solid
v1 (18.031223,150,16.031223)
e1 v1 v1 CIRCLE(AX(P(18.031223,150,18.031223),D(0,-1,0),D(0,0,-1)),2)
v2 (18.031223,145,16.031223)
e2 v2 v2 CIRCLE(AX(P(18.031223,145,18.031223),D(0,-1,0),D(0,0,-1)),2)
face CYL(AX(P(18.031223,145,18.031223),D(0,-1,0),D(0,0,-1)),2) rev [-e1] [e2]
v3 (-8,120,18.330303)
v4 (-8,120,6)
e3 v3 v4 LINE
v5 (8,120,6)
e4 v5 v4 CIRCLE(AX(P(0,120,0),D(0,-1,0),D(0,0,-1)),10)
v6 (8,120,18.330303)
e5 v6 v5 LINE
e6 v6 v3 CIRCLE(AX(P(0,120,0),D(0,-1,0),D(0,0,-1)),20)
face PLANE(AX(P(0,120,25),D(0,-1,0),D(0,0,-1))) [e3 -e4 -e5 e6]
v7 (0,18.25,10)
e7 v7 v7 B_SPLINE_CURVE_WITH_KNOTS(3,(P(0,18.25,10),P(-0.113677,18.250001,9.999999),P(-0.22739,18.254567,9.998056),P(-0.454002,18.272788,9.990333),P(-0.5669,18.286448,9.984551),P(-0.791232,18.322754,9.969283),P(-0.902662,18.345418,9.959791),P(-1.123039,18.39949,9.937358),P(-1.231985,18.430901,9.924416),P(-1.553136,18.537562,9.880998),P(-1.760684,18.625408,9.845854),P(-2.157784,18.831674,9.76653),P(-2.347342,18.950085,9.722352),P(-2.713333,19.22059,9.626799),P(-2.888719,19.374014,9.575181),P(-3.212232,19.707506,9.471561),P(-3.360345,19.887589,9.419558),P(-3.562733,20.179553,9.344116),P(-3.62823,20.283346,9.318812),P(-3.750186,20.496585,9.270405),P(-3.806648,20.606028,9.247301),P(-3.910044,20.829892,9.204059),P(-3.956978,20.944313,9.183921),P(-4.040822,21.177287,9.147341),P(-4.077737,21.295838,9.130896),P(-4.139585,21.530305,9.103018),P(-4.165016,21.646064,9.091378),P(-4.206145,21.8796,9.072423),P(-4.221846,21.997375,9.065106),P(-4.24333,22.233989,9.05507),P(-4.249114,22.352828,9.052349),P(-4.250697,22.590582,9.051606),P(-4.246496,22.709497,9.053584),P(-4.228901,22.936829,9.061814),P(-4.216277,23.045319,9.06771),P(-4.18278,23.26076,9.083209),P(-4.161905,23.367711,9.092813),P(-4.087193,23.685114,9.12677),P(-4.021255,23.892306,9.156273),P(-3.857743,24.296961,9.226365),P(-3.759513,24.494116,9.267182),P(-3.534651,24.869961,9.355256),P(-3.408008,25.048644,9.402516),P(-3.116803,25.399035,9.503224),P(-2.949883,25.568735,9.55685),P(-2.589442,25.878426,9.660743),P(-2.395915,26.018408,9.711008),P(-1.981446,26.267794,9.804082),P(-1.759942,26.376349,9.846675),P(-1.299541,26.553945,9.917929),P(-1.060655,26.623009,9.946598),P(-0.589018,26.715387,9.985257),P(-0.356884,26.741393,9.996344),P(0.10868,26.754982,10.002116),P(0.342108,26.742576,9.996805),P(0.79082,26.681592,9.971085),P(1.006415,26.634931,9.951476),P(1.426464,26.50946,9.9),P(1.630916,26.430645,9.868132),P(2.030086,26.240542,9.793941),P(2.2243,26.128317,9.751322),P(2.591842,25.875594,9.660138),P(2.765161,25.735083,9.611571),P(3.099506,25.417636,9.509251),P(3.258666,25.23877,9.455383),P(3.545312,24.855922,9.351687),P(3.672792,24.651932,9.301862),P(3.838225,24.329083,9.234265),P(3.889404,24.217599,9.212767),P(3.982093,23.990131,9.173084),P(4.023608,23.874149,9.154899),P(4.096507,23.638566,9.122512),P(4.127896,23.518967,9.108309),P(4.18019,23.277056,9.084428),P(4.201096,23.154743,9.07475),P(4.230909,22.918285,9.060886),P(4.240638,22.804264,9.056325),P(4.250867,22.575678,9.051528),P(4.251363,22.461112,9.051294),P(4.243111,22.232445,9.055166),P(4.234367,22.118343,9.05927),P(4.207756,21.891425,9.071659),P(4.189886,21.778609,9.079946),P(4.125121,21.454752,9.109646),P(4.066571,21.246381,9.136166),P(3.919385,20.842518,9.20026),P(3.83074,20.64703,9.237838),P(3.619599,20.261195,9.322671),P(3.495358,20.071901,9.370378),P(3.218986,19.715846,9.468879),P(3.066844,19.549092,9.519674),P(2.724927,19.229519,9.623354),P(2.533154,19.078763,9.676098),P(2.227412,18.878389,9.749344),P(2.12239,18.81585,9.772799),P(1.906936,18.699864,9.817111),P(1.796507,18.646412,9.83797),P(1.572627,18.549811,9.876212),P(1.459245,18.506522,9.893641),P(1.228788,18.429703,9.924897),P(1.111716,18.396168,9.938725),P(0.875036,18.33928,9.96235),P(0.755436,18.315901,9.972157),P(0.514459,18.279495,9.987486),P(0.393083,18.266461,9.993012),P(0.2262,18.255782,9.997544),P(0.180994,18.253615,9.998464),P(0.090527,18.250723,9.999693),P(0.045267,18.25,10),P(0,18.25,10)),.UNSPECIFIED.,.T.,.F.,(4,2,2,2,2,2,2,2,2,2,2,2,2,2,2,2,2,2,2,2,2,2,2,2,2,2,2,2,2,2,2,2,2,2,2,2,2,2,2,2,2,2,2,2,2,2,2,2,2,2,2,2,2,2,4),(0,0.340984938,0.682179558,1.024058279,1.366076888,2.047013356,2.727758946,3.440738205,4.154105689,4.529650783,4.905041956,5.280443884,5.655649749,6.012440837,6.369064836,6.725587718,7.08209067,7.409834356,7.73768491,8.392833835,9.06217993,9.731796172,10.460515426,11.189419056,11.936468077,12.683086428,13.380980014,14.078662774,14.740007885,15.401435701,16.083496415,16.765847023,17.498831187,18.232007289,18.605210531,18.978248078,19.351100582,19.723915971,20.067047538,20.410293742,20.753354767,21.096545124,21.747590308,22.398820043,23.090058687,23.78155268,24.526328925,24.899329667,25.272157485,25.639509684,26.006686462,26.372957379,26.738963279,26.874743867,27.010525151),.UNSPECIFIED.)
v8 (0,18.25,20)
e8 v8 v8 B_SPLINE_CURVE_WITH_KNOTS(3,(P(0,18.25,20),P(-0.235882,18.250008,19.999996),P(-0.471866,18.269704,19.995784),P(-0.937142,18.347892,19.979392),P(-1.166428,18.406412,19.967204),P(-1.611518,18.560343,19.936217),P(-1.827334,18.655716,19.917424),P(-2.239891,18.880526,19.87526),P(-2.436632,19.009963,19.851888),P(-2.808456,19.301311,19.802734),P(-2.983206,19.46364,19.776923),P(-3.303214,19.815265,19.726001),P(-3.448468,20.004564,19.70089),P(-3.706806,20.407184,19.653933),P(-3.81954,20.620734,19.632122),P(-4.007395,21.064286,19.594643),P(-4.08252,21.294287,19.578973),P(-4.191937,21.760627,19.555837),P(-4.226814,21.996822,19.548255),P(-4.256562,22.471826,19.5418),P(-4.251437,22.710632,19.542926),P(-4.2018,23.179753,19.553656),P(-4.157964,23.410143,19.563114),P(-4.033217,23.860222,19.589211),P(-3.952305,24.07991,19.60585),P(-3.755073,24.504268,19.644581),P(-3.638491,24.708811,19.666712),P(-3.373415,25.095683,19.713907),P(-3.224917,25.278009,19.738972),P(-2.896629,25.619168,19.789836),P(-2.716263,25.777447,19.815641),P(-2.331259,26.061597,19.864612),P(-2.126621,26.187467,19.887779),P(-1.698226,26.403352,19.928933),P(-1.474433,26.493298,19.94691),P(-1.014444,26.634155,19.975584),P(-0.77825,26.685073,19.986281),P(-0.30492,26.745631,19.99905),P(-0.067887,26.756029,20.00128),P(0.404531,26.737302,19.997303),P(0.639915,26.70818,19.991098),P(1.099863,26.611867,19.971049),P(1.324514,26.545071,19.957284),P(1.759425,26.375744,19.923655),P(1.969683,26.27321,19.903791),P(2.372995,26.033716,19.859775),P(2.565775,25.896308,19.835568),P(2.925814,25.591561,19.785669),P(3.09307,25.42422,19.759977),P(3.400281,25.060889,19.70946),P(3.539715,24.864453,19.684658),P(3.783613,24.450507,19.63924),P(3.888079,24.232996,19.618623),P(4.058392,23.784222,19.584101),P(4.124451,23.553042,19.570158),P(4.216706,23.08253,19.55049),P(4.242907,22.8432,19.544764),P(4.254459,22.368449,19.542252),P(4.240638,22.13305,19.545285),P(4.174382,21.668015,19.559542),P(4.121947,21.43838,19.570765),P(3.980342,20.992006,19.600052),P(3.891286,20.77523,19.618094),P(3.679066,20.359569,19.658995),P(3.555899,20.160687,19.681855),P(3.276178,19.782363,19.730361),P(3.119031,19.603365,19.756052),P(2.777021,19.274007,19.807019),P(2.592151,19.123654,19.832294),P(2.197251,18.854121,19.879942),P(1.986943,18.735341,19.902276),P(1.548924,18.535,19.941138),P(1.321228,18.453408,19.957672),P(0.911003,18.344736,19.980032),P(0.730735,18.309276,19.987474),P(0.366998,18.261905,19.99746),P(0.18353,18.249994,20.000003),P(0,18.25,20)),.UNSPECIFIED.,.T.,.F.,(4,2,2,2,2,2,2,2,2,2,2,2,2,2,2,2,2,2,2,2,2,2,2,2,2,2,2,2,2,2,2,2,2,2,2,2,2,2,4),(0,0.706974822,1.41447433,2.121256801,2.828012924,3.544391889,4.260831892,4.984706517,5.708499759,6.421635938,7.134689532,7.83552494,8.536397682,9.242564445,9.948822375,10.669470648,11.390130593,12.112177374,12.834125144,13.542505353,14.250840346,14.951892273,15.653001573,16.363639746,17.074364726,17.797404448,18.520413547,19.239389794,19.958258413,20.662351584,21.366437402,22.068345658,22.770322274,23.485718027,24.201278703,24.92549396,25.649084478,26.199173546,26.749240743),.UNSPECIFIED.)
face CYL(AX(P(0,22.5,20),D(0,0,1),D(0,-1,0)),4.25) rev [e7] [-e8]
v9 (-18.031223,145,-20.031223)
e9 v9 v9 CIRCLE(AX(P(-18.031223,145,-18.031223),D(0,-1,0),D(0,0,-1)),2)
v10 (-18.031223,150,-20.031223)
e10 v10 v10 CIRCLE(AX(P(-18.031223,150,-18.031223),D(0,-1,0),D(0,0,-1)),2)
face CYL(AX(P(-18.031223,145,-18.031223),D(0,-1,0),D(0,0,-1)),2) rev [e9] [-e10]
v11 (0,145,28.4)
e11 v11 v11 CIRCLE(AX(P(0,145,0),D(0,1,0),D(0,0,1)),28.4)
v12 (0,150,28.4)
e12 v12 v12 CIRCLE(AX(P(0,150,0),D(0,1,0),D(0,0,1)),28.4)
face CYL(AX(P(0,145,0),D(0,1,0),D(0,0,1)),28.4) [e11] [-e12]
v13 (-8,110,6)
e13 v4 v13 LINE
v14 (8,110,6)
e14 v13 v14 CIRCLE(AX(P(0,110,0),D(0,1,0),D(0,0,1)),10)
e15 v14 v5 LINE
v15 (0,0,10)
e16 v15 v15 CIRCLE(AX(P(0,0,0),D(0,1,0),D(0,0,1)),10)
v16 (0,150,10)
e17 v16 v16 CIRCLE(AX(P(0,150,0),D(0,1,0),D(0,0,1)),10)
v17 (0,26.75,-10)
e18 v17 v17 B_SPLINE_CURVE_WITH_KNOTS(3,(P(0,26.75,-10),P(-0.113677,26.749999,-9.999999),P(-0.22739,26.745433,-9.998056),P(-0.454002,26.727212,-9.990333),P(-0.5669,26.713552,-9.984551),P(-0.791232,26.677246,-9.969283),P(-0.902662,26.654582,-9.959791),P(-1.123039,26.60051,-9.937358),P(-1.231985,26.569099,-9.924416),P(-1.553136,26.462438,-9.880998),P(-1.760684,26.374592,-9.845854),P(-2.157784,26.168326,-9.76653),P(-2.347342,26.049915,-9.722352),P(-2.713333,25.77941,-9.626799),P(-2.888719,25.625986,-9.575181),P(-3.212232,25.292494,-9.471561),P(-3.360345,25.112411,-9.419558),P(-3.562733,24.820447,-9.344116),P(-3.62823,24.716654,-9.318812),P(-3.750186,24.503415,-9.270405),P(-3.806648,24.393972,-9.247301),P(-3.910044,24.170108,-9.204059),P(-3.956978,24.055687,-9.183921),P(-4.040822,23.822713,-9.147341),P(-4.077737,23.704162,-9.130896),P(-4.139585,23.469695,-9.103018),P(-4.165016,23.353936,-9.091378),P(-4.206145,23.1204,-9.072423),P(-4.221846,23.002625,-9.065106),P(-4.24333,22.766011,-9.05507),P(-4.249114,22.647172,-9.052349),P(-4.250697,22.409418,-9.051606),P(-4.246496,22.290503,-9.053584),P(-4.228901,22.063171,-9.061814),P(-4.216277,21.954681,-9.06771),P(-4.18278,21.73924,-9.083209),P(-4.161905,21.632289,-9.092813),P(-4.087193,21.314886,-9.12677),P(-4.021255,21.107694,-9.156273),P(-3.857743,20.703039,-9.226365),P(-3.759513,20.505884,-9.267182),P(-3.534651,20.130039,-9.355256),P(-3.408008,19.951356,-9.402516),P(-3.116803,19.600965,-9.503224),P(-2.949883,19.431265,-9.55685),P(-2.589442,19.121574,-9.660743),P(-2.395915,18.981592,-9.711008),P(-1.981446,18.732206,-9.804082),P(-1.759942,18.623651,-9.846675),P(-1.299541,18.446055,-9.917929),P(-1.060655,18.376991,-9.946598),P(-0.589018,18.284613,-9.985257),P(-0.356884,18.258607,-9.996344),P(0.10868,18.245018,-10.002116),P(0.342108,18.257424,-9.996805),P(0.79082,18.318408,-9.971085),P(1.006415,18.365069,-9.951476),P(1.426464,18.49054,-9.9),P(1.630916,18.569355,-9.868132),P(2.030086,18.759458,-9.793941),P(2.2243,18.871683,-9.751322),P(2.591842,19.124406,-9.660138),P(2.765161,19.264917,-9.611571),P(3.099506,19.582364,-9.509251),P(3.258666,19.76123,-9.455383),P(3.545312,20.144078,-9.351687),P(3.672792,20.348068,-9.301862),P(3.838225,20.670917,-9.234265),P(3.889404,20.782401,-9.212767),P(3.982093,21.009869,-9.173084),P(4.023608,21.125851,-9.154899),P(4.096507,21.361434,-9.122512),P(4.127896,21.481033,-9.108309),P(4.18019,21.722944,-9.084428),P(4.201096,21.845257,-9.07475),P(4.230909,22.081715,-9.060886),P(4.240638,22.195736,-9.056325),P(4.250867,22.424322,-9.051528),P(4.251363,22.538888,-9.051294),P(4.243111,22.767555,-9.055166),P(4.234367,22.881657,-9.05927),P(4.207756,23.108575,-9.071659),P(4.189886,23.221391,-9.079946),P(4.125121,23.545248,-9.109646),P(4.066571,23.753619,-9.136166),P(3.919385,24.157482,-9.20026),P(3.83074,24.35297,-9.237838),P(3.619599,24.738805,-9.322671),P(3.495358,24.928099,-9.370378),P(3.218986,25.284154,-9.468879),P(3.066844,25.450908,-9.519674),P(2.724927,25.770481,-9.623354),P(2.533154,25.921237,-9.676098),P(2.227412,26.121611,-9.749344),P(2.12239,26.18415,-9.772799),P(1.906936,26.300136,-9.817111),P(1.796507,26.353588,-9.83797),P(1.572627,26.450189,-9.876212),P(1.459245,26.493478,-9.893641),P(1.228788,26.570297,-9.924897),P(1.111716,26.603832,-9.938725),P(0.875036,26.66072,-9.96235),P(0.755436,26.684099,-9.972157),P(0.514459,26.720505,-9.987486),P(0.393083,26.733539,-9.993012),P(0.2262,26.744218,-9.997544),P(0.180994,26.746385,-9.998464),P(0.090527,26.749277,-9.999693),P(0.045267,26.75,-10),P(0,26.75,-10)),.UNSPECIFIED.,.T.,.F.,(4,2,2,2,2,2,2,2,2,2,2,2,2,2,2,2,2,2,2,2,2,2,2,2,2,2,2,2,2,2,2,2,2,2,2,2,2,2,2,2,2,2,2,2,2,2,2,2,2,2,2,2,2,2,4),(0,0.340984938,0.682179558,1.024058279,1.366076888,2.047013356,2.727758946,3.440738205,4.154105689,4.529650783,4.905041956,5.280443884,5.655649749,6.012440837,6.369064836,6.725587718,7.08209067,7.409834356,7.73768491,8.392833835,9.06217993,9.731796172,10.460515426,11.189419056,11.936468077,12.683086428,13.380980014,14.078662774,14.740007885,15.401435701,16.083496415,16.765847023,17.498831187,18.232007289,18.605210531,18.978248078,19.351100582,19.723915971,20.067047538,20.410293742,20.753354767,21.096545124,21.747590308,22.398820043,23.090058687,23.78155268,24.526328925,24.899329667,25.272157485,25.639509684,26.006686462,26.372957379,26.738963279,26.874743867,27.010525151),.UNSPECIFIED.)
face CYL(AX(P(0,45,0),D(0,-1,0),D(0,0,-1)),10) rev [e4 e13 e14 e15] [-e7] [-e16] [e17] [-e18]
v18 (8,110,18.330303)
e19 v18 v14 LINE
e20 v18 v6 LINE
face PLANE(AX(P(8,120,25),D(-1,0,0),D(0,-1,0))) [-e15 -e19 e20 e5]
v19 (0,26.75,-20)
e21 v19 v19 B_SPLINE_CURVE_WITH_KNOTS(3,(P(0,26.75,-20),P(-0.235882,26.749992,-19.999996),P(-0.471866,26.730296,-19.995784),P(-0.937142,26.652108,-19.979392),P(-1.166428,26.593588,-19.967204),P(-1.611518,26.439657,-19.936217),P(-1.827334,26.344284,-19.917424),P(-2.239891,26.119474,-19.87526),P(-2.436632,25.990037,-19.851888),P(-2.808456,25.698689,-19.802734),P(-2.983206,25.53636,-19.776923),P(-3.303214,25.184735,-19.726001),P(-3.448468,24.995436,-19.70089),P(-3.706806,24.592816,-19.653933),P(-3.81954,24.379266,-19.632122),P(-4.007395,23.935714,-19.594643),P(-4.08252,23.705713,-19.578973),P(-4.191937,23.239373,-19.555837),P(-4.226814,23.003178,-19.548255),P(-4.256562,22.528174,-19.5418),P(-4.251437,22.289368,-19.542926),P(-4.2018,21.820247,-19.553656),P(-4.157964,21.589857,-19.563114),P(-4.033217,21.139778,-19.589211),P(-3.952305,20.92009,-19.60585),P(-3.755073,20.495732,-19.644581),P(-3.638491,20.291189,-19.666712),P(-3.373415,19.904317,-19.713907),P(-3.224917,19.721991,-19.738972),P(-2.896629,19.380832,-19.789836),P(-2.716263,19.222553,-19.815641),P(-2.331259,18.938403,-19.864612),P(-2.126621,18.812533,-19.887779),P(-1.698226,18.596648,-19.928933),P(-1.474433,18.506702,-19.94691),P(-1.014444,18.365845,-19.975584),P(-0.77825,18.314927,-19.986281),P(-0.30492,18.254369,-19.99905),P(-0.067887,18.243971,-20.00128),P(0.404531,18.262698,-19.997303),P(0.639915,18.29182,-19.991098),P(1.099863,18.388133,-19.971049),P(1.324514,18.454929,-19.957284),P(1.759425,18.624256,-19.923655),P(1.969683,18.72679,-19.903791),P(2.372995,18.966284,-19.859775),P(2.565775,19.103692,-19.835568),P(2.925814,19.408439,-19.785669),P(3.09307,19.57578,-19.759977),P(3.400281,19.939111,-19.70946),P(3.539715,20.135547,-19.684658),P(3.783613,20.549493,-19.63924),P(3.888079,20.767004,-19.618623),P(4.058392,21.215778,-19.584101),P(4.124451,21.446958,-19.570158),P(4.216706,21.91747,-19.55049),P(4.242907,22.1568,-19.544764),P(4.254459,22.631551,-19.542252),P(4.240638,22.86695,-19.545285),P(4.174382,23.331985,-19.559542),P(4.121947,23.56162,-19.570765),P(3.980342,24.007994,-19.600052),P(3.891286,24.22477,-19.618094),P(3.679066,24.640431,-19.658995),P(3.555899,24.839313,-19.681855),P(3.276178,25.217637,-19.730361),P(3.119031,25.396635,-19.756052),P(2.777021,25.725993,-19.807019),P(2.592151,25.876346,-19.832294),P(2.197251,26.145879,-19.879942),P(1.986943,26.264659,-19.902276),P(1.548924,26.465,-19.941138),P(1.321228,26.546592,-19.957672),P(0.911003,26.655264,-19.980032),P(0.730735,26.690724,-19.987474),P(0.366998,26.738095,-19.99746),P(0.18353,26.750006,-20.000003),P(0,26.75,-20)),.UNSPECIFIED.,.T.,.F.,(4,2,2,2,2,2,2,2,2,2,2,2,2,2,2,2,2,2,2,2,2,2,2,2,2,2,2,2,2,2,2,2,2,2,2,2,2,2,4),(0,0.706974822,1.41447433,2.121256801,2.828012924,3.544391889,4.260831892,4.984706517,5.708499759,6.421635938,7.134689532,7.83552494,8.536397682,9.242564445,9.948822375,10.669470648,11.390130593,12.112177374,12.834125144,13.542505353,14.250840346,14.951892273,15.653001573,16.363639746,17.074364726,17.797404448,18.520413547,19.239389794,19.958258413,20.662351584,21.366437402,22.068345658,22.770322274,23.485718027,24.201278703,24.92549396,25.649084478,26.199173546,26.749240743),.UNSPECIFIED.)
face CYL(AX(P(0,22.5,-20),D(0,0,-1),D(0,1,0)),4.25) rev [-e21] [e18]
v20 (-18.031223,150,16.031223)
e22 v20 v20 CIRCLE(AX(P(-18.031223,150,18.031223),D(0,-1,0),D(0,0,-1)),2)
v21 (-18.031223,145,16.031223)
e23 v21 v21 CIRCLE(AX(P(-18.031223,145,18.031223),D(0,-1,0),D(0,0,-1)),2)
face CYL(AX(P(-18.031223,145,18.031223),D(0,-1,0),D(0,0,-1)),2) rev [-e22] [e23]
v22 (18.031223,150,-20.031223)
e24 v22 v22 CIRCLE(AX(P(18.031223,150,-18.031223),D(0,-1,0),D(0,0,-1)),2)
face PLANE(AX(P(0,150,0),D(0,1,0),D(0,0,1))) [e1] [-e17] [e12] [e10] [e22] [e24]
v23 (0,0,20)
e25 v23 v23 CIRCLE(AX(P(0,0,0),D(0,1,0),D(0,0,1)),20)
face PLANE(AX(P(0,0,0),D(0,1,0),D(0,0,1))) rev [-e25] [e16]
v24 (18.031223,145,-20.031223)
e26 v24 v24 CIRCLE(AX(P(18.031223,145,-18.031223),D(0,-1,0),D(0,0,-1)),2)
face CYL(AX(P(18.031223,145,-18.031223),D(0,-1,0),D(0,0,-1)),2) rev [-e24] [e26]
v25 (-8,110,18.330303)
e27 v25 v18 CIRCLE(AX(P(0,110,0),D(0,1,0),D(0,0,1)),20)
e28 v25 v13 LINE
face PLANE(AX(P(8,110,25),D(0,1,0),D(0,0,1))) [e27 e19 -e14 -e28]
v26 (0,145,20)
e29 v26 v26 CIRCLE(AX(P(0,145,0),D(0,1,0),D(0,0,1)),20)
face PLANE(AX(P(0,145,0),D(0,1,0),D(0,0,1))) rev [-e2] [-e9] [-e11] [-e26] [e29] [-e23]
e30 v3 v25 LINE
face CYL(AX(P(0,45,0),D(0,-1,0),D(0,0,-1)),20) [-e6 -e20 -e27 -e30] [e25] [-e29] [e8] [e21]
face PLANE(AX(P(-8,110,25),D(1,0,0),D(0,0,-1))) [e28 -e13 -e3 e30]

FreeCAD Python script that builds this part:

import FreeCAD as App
import Part
import Sketcher
Q = App.Units.Quantity

doc = App.newDocument("Part")
body = doc.addObject("PartDesign::Body", "Body")

# Sketch on XZ plane
sketch1 = body.newObject("Sketcher::SketchObject", "Sketch")
sketch1.AttachmentSupport = (doc.getObject("XZ_Plane"), [""])
sketch1.MapMode = "FlatFace"
sketch1.addGeometry([
    Part.Circle(App.Vector(0, 0, 0), App.Vector(0, 0, 1), 20),
    Part.Circle(App.Vector(0, 0, 0), App.Vector(0, 0, 1), 10),
], False)
sketch1.addConstraint([
    Sketcher.Constraint("Coincident", 0, 3, -1, 1),
    Sketcher.Constraint("Coincident", 1, 3, -1, 1),
    Sketcher.Constraint("Diameter", 0, Q("40 mm")),
    Sketcher.Constraint("Diameter", 1, Q("20 mm")),
])
pad1 = body.newObject("PartDesign::Pad", "Pad")
pad1.Profile = sketch1
pad1.Length = 45
pad1.Reversed = True

# Sketch on XY plane
sketch2 = body.newObject("Sketcher::SketchObject", "Sketch001")
sketch2.AttachmentSupport = (doc.getObject("XY_Plane"), [""])
sketch2.MapMode = "FlatFace"
sketch2.AttachmentOffset = App.Placement(App.Vector(0, 0, -20), App.Rotation())
sketch2.addGeometry(Part.Circle(App.Vector(0, 22.5, 0), App.Vector(0, 0, 1), 4.2), False)
sketch2.addConstraint([
    Sketcher.Constraint("PointOnObject", 0, 3, -2),
    Sketcher.Constraint("Diameter", 0, Q("8.5 mm")),
    Sketcher.Constraint("DistanceY", -1, 1, 0, 3, Q("22.5 mm")),
])
doc.recompute()
hole = body.newObject("PartDesign::Hole", "Hole")
hole.Profile = sketch2
hole.ThreadType = "None"
hole.Diameter = 8.5
hole.DepthType = "Dimension"
hole.Depth = 12.5
hole.DrillPoint = "Angled"
hole.DrillPointAngle = 118
hole.Reversed = True

# Sketch on XY plane
sketch3 = body.newObject("Sketcher::SketchObject", "Sketch002")
sketch3.AttachmentSupport = (doc.getObject("XY_Plane"), [""])
sketch3.MapMode = "FlatFace"
sketch3.AttachmentOffset = App.Placement(App.Vector(0, 0, 20), App.Rotation())
sketch3.addGeometry(Part.Circle(App.Vector(0, 22.5, 0), App.Vector(0, 0, 1), 4.2), False)
sketch3.addConstraint([
    Sketcher.Constraint("PointOnObject", 0, 3, -2),
    Sketcher.Constraint("Diameter", 0, Q("8.5 mm")),
    Sketcher.Constraint("DistanceY", -1, 1, 0, 3, Q("22.5 mm")),
])
doc.recompute()
hole2 = body.newObject("PartDesign::Hole", "Hole001")
hole2.Profile = sketch3
hole2.ThreadType = "None"
hole2.Diameter = 8.5
hole2.DepthType = "Dimension"
hole2.Depth = 12.5
hole2.DrillPoint = "Angled"
hole2.DrillPointAngle = 118

# Sketch on XZ plane
sketch4 = body.newObject("Sketcher::SketchObject", "Sketch003")
sketch4.AttachmentSupport = (doc.getObject("XZ_Plane"), [""])
sketch4.MapMode = "FlatFace"
sketch4.AttachmentOffset = App.Placement(App.Vector(0, 0, -45), App.Rotation())
sketch4.addGeometry([
    Part.Circle(App.Vector(0, 0, 0), App.Vector(0, 0, 1), 20),
    Part.Circle(App.Vector(0, 0, 0), App.Vector(0, 0, 1), 10),
], False)
sketch4.addConstraint([
    Sketcher.Constraint("Coincident", 0, 3, -1, 1),
    Sketcher.Constraint("Coincident", 1, 3, -1, 1),
    Sketcher.Constraint("Diameter", 0, Q("40 mm")),
    Sketcher.Constraint("Diameter", 1, Q("20 mm")),
])
pad2 = body.newObject("PartDesign::Pad", "Pad001")
pad2.Profile = sketch4
pad2.Length = 105
pad2.Reversed = True

# Sketch on XZ plane
sketch5 = body.newObject("Sketcher::SketchObject", "Sketch004")
sketch5.AttachmentSupport = (doc.getObject("XZ_Plane"), [""])
sketch5.MapMode = "FlatFace"
sketch5.AttachmentOffset = App.Placement(App.Vector(0, 0, -145), App.Rotation())
sketch5.addGeometry([
    Part.Circle(App.Vector(0, 0, 0), App.Vector(0, 0, 1), 28),
    Part.Circle(App.Vector(0, 0, 0), App.Vector(0, 0, 1), 20),
], False)
sketch5.addConstraint([
    Sketcher.Constraint("Coincident", 0, 3, -1, 1),
    Sketcher.Constraint("Coincident", 1, 3, -1, 1),
    Sketcher.Constraint("Diameter", 1, Q("40 mm")),
    Sketcher.Constraint("Diameter", 0, Q("56.8 mm")),
])
pad3 = body.newObject("PartDesign::Pad", "Pad002")
pad3.Profile = sketch5
pad3.Length = 5
pad3.Reversed = True

# Sketch on XZ plane
sketch6 = body.newObject("Sketcher::SketchObject", "Sketch005")
sketch6.AttachmentSupport = (doc.getObject("XZ_Plane"), [""])
sketch6.MapMode = "FlatFace"
sketch6.AttachmentOffset = App.Placement(App.Vector(0, 0, -145), App.Rotation())
sketch6.addGeometry([
    Part.Circle(App.Vector(-18, -18, 0), App.Vector(0, 0, 1), 2),
    Part.Circle(App.Vector(-18, 18, 0), App.Vector(0, 0, 1), 2),
    Part.Circle(App.Vector(18, 18, 0), App.Vector(0, 0, 1), 2),
    Part.Circle(App.Vector(18, -18, 0), App.Vector(0, 0, 1), 2),
], False)
sketch6.addConstraint([
    Sketcher.Constraint("Equal", 0, 1),
    Sketcher.Constraint("Equal", 1, 2),
    Sketcher.Constraint("Equal", 2, 3),
    Sketcher.Constraint("Symmetric", 0, 3, 2, 3, -1, 1),
    Sketcher.Constraint("Symmetric", 1, 3, 3, 3, -1, 1),
    Sketcher.Constraint("Symmetric", 1, 3, 2, 3, -2),
    Sketcher.Constraint("Diameter", 0, Q("4 mm")),
    Sketcher.Constraint("DistanceX", 0, 3, -1, 1, Q("18.031223 mm")),
    Sketcher.Constraint("DistanceY", 0, 3, -1, 1, Q("18.031223 mm")),
])
doc.recompute()
hole3 = body.newObject("PartDesign::Hole", "Hole002")
hole3.Profile = sketch6
hole3.ThreadType = "None"
hole3.Diameter = 4
hole3.DepthType = "ThroughAll"

# Sketch on XY plane
sketch7 = body.newObject("Sketcher::SketchObject", "Sketch006")
sketch7.AttachmentSupport = (doc.getObject("XY_Plane"), [""])
sketch7.MapMode = "FlatFace"
sketch7.addGeometry([
    Part.LineSegment(App.Vector(8, 120, 0), App.Vector(-8, 120, 0)),
    Part.LineSegment(App.Vector(-8, 120, 0), App.Vector(-8, 110, 0)),
    Part.LineSegment(App.Vector(-8, 110, 0), App.Vector(8, 110, 0)),
    Part.LineSegment(App.Vector(8, 110, 0), App.Vector(8, 120, 0)),
], False)
sketch7.addConstraint([
    Sketcher.Constraint("Coincident", 0, 2, 1, 1),
    Sketcher.Constraint("Coincident", 1, 2, 2, 1),
    Sketcher.Constraint("Coincident", 2, 2, 3, 1),
    Sketcher.Constraint("Coincident", 3, 2, 0, 1),
    Sketcher.Constraint("Horizontal", 0),
    Sketcher.Constraint("Vertical", 1),
    Sketcher.Constraint("Horizontal", 2),
    Sketcher.Constraint("Vertical", 3),
    Sketcher.Constraint("DistanceX", 0, 2, 0, 1, Q("16 mm")),
    Sketcher.Constraint("DistanceY", 1, 2, 1, 1, Q("10 mm")),
    Sketcher.Constraint("DistanceX", 0, 2, -1, 1, Q("8 mm")),
    Sketcher.Constraint("DistanceY", -1, 1, 0, 2, Q("120 mm")),
])
pocket1 = body.newObject("PartDesign::Pocket", "Pocket")
pocket1.Profile = sketch7
pocket1.Length = 25
pocket1.Reversed = True

doc.recompute()
